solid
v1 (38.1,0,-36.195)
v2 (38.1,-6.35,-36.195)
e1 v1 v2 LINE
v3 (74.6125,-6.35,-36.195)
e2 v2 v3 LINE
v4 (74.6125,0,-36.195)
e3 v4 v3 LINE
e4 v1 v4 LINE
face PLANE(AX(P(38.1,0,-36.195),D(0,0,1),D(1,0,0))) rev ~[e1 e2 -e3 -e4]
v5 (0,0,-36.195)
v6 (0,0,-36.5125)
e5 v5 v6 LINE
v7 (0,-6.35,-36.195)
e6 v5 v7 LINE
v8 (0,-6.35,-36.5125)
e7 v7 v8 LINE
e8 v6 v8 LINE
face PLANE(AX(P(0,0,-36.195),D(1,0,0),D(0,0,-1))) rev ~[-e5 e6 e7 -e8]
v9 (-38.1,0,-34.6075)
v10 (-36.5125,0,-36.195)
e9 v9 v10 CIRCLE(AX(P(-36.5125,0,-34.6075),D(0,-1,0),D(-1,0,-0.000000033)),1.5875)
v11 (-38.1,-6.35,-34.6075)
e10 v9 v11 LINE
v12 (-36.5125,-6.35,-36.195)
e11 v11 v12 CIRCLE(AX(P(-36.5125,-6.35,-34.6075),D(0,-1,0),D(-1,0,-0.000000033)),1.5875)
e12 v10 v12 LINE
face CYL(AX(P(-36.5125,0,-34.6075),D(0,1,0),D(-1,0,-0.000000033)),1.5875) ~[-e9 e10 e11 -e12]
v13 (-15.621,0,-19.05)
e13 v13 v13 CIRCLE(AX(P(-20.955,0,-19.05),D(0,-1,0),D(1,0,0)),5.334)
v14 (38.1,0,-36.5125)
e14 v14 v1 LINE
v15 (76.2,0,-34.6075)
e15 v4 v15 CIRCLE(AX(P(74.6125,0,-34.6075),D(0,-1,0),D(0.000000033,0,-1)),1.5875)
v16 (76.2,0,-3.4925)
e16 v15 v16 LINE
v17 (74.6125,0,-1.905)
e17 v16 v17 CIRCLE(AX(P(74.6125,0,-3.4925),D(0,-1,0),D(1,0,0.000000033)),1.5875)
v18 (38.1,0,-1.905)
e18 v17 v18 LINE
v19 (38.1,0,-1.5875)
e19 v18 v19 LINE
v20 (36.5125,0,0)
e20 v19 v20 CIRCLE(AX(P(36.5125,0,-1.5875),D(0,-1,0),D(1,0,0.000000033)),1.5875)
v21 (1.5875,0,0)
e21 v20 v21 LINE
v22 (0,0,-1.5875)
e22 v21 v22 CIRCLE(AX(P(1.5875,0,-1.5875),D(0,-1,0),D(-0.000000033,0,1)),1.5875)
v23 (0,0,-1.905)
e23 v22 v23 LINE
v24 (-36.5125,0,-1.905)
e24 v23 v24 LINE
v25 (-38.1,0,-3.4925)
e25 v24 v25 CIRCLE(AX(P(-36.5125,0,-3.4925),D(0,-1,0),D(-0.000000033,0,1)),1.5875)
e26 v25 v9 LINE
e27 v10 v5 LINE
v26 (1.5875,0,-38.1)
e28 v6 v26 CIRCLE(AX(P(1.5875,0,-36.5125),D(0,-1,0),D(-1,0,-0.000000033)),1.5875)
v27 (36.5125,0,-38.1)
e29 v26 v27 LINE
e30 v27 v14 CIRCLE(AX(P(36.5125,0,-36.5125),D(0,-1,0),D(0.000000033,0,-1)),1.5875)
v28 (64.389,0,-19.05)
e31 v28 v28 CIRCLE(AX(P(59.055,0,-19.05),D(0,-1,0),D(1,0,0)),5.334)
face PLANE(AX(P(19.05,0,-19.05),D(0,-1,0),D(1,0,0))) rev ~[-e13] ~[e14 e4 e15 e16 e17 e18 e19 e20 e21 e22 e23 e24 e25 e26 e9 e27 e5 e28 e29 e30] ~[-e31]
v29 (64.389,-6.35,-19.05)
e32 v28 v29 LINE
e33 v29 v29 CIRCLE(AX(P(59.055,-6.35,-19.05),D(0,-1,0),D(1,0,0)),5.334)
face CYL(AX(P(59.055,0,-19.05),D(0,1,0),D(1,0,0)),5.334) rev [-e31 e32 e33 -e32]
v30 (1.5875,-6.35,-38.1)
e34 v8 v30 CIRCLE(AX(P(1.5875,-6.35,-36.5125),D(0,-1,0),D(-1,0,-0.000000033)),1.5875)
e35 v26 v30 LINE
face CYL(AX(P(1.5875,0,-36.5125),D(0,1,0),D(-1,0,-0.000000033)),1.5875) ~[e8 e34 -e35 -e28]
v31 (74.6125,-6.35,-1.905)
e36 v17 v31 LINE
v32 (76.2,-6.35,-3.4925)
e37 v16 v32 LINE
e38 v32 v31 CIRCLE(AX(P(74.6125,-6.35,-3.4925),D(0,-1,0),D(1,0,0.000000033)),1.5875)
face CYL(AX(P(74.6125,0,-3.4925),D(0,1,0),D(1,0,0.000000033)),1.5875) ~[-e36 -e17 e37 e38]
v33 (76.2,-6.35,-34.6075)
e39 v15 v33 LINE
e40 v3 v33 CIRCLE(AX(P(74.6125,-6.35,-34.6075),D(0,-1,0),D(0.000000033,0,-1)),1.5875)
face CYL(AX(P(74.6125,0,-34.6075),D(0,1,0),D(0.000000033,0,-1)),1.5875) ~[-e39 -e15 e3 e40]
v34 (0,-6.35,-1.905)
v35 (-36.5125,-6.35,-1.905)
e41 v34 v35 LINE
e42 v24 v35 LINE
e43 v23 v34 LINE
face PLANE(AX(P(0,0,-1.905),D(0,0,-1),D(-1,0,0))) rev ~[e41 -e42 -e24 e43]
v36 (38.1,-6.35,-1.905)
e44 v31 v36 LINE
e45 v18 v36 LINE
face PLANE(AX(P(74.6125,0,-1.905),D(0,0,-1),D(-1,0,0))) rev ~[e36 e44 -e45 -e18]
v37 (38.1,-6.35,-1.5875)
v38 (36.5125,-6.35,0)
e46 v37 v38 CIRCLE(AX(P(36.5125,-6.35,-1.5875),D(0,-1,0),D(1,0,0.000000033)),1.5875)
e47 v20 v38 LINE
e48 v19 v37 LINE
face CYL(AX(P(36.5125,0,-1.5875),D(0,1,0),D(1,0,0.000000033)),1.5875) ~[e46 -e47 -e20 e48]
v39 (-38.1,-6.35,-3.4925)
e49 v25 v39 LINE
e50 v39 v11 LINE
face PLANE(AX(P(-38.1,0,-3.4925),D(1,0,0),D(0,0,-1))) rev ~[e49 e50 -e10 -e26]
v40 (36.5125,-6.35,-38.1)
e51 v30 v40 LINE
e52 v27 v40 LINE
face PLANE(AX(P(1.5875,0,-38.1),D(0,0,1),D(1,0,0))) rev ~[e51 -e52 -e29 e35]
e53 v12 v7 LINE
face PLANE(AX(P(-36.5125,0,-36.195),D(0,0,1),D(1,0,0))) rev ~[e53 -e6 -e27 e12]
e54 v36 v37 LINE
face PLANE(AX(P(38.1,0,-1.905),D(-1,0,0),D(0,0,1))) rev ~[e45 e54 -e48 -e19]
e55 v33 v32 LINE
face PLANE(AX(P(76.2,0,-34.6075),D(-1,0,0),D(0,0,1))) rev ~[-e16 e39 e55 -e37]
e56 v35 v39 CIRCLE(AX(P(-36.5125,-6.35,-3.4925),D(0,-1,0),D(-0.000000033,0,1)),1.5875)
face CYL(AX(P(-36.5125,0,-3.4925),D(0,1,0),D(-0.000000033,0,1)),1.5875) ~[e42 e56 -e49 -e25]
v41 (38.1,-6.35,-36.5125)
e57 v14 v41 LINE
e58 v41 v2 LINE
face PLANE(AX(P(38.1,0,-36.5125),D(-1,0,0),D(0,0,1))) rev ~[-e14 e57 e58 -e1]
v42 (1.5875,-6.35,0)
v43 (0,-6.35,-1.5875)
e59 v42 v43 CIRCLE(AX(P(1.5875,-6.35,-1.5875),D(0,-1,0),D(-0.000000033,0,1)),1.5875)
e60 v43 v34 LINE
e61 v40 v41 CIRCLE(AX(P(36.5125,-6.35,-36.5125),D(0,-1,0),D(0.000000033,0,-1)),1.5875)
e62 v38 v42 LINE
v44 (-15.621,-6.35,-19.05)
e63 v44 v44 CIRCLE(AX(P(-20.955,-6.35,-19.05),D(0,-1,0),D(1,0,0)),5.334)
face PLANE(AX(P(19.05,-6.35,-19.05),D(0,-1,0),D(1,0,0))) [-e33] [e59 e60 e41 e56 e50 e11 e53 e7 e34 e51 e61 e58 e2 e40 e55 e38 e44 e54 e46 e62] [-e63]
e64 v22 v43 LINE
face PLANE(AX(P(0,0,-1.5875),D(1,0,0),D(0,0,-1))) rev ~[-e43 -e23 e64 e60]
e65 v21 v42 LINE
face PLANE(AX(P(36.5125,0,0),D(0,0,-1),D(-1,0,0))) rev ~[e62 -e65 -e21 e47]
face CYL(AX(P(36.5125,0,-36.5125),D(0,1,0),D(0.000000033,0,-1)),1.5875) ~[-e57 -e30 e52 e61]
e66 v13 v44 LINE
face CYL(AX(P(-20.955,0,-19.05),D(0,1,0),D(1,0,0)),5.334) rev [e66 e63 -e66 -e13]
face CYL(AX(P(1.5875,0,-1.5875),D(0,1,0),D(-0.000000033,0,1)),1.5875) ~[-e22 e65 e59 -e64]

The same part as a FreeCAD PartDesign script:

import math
import FreeCAD as App
import Part
import Sketcher
from FreeCAD import Vector
Q = App.Units.Quantity

doc = App.newDocument("Part")
params = doc.addObject("Spreadsheet::Sheet", "Params")
for row, (alias, value) in enumerate([
    ("sketch1_diameter", "0.42 in"),
    ("sketch1_radius", "0.0625 in"),
    ("pad1_length", "0.25 in"),
], start=1):
    params.set(f"A{row}", alias)
    params.set(f"B{row}", "=" + value)
    params.setAlias(f"B{row}", alias)

body = doc.addObject("PartDesign::Body", "Body")

sketch1 = body.newObject("Sketcher::SketchObject", "Sketch")
sketch1.AttachmentSupport = (doc.getObject("XZ_Plane"), [""])
sketch1.MapMode = "FlatFace"
sketch1.addGeometry(Part.LineSegment(Vector(36.51, 0, 0), Vector(1.59, 0, 0)), False)
sketch1.addGeometry(Part.ArcOfCircle(Part.Circle(Vector(1.59, -1.59, 0), Vector(0, 0, 1), 1.59), math.radians(90), math.radians(180)), False)
sketch1.addGeometry(Part.LineSegment(Vector(0, -1.59, 0), Vector(0, -1.91, 0)), False)
sketch1.addGeometry(Part.LineSegment(Vector(0, -1.91, 0), Vector(-36.51, -1.91, 0)), False)
sketch1.addGeometry(Part.ArcOfCircle(Part.Circle(Vector(-36.51, -3.49, 0), Vector(0, 0, 1), 1.59), math.radians(90), math.radians(180)), False)
sketch1.addGeometry(Part.LineSegment(Vector(-38.1, -3.49, 0), Vector(-38.1, -34.61, 0)), False)
sketch1.addGeometry(Part.ArcOfCircle(Part.Circle(Vector(-36.51, -34.61, 0), Vector(0, 0, 1), 1.59), math.radians(-180), math.radians(-90)), False)
sketch1.addGeometry(Part.LineSegment(Vector(-36.51, -36.2, 0), Vector(0, -36.2, 0)), False)
sketch1.addGeometry(Part.LineSegment(Vector(0, -36.2, 0), Vector(0, -36.51, 0)), False)
sketch1.addGeometry(Part.ArcOfCircle(Part.Circle(Vector(1.59, -36.51, 0), Vector(0, 0, 1), 1.59), math.radians(-180), math.radians(-90)), False)
sketch1.addGeometry(Part.LineSegment(Vector(1.59, -38.1, 0), Vector(36.51, -38.1, 0)), False)
sketch1.addGeometry(Part.ArcOfCircle(Part.Circle(Vector(36.51, -36.51, 0), Vector(0, 0, 1), 1.59), math.radians(-90), math.radians(0)), False)
sketch1.addGeometry(Part.LineSegment(Vector(38.1, -36.51, 0), Vector(38.1, -36.2, 0)), False)
sketch1.addGeometry(Part.LineSegment(Vector(38.1, -36.2, 0), Vector(74.61, -36.2, 0)), False)
sketch1.addGeometry(Part.ArcOfCircle(Part.Circle(Vector(74.61, -34.61, 0), Vector(0, 0, 1), 1.59), math.radians(-90), math.radians(0)), False)
sketch1.addGeometry(Part.LineSegment(Vector(76.2, -34.61, 0), Vector(76.2, -3.49, 0)), False)
sketch1.addGeometry(Part.ArcOfCircle(Part.Circle(Vector(74.61, -3.49, 0), Vector(0, 0, 1), 1.59), math.radians(0), math.radians(90)), False)
sketch1.addGeometry(Part.LineSegment(Vector(74.61, -1.91, 0), Vector(38.1, -1.91, 0)), False)
sketch1.addGeometry(Part.LineSegment(Vector(38.1, -1.91, 0), Vector(38.1, -1.59, 0)), False)
sketch1.addGeometry(Part.ArcOfCircle(Part.Circle(Vector(36.51, -1.59, 0), Vector(0, 0, 1), 1.59), math.radians(0), math.radians(90)), False)
sketch1.addGeometry(Part.Circle(Vector(-20.95, -19.05, 0), Vector(0, 0, 1), 5.33), False)
sketch1.addGeometry(Part.Circle(Vector(59.05, -19.05, 0), Vector(0, 0, 1), 5.33), False)
sketch1.addConstraint(Sketcher.Constraint("Tangent", 0, 2, 1, 1))
sketch1.addConstraint(Sketcher.Constraint("Tangent", 1, 2, 2, 1))
sketch1.addConstraint(Sketcher.Constraint("Coincident", 2, 2, 3, 1))
sketch1.addConstraint(Sketcher.Constraint("Tangent", 3, 2, 4, 1))
sketch1.addConstraint(Sketcher.Constraint("Tangent", 4, 2, 5, 1))
sketch1.addConstraint(Sketcher.Constraint("Tangent", 5, 2, 6, 1))
sketch1.addConstraint(Sketcher.Constraint("Tangent", 6, 2, 7, 1))
sketch1.addConstraint(Sketcher.Constraint("Coincident", 7, 2, 8, 1))
sketch1.addConstraint(Sketcher.Constraint("Tangent", 8, 2, 9, 1))
sketch1.addConstraint(Sketcher.Constraint("Tangent", 9, 2, 10, 1))
sketch1.addConstraint(Sketcher.Constraint("Tangent", 10, 2, 11, 1))
sketch1.addConstraint(Sketcher.Constraint("Tangent", 11, 2, 12, 1))
sketch1.addConstraint(Sketcher.Constraint("Coincident", 12, 2, 13, 1))
sketch1.addConstraint(Sketcher.Constraint("Tangent", 13, 2, 14, 1))
sketch1.addConstraint(Sketcher.Constraint("Tangent", 14, 2, 15, 1))
sketch1.addConstraint(Sketcher.Constraint("Tangent", 15, 2, 16, 1))
sketch1.addConstraint(Sketcher.Constraint("Tangent", 16, 2, 17, 1))
sketch1.addConstraint(Sketcher.Constraint("Coincident", 17, 2, 18, 1))
sketch1.addConstraint(Sketcher.Constraint("Tangent", 18, 2, 19, 1))
sketch1.addConstraint(Sketcher.Constraint("Tangent", 19, 2, 0, 1))
sketch1.addConstraint(Sketcher.Constraint("Horizontal", 0))
sketch1.addConstraint(Sketcher.Constraint("Vertical", 2))
sketch1.addConstraint(Sketcher.Constraint("Horizontal", 3))
sketch1.addConstraint(Sketcher.Constraint("Vertical", 5))
sketch1.addConstraint(Sketcher.Constraint("Horizontal", 7))
sketch1.addConstraint(Sketcher.Constraint("Vertical", 8))
sketch1.addConstraint(Sketcher.Constraint("Horizontal", 10))
sketch1.addConstraint(Sketcher.Constraint("Vertical", 12))
sketch1.addConstraint(Sketcher.Constraint("Horizontal", 13))
sketch1.addConstraint(Sketcher.Constraint("Vertical", 15))
sketch1.addConstraint(Sketcher.Constraint("Horizontal", 17))
sketch1.addConstraint(Sketcher.Constraint("Vertical", 18))
sketch1.addConstraint(Sketcher.Constraint("Equal", 1, 4))
sketch1.addConstraint(Sketcher.Constraint("Equal", 4, 6))
sketch1.addConstraint(Sketcher.Constraint("Equal", 6, 9))
sketch1.addConstraint(Sketcher.Constraint("Equal", 9, 11))
sketch1.addConstraint(Sketcher.Constraint("Equal", 11, 14))
sketch1.addConstraint(Sketcher.Constraint("Equal", 14, 16))
sketch1.addConstraint(Sketcher.Constraint("Equal", 16, 19))
sketch1.addConstraint(Sketcher.Constraint("Equal", 20, 21))
sketch1.addConstraint(Sketcher.Constraint("PointOnObject", 0, 2, -1))
sketch1.addConstraint(Sketcher.Constraint("PointOnObject", 1, 2, -2))
sketch1.addConstraint(Sketcher.Constraint("PointOnObject", 7, 2, -2))
sketch1.addConstraint(Sketcher.Constraint("Horizontal", 6, 3, 14, 3))
sketch1.addConstraint(Sketcher.Constraint("Horizontal", 4, 3, 16, 3))
sketch1.addConstraint(Sketcher.Constraint("Horizontal", 20, 3, 21, 3))
sketch1.addConstraint(Sketcher.Constraint("Vertical", 11, 3, 19, 3))
sketch1.addConstraint(Sketcher.Constraint("Equal", 7, 13))
sketch1.addConstraint(Sketcher.Constraint("Equal", 2, 8))
sketch1.addConstraint(Sketcher.Constraint("Diameter", 20, Q("0.42 in")))
sketch1.addConstraint(Sketcher.Constraint("DistanceX", -1, 1, 14, 2, Q("3 in")))
sketch1.addConstraint(Sketcher.Constraint("Radius", 1, Q("0.0625 in")))
sketch1.addConstraint(Sketcher.Constraint("DistanceX", 4, 2, -1, 1, Q("1.5 in")))
sketch1.addConstraint(Sketcher.Constraint("DistanceY", 9, 2, -1, 1, Q("1.5 in")))
sketch1.addConstraint(Sketcher.Constraint("DistanceY", 6, 3, 1, 3, Q("1.3 in")))
sketch1.addConstraint(Sketcher.Constraint("DistanceY", 20, 3, -1, 1, Q("0.75 in")))
sketch1.addConstraint(Sketcher.Constraint("DistanceX", 20, 3, -1, 1, Q("0.825 in")))
sketch1.addConstraint(Sketcher.Constraint("DistanceX", -1, 1, 21, 3, Q("2.325 in")))
sketch1.setExpression("Constraints[49]", "Params.sketch1_diameter")
sketch1.setExpression("Constraints[51]", "Params.sketch1_radius")
pad1 = body.newObject("PartDesign::Pad", "Pad")
pad1.Profile = sketch1
pad1.setExpression("Length", "Params.pad1_length")

doc.recompute()
